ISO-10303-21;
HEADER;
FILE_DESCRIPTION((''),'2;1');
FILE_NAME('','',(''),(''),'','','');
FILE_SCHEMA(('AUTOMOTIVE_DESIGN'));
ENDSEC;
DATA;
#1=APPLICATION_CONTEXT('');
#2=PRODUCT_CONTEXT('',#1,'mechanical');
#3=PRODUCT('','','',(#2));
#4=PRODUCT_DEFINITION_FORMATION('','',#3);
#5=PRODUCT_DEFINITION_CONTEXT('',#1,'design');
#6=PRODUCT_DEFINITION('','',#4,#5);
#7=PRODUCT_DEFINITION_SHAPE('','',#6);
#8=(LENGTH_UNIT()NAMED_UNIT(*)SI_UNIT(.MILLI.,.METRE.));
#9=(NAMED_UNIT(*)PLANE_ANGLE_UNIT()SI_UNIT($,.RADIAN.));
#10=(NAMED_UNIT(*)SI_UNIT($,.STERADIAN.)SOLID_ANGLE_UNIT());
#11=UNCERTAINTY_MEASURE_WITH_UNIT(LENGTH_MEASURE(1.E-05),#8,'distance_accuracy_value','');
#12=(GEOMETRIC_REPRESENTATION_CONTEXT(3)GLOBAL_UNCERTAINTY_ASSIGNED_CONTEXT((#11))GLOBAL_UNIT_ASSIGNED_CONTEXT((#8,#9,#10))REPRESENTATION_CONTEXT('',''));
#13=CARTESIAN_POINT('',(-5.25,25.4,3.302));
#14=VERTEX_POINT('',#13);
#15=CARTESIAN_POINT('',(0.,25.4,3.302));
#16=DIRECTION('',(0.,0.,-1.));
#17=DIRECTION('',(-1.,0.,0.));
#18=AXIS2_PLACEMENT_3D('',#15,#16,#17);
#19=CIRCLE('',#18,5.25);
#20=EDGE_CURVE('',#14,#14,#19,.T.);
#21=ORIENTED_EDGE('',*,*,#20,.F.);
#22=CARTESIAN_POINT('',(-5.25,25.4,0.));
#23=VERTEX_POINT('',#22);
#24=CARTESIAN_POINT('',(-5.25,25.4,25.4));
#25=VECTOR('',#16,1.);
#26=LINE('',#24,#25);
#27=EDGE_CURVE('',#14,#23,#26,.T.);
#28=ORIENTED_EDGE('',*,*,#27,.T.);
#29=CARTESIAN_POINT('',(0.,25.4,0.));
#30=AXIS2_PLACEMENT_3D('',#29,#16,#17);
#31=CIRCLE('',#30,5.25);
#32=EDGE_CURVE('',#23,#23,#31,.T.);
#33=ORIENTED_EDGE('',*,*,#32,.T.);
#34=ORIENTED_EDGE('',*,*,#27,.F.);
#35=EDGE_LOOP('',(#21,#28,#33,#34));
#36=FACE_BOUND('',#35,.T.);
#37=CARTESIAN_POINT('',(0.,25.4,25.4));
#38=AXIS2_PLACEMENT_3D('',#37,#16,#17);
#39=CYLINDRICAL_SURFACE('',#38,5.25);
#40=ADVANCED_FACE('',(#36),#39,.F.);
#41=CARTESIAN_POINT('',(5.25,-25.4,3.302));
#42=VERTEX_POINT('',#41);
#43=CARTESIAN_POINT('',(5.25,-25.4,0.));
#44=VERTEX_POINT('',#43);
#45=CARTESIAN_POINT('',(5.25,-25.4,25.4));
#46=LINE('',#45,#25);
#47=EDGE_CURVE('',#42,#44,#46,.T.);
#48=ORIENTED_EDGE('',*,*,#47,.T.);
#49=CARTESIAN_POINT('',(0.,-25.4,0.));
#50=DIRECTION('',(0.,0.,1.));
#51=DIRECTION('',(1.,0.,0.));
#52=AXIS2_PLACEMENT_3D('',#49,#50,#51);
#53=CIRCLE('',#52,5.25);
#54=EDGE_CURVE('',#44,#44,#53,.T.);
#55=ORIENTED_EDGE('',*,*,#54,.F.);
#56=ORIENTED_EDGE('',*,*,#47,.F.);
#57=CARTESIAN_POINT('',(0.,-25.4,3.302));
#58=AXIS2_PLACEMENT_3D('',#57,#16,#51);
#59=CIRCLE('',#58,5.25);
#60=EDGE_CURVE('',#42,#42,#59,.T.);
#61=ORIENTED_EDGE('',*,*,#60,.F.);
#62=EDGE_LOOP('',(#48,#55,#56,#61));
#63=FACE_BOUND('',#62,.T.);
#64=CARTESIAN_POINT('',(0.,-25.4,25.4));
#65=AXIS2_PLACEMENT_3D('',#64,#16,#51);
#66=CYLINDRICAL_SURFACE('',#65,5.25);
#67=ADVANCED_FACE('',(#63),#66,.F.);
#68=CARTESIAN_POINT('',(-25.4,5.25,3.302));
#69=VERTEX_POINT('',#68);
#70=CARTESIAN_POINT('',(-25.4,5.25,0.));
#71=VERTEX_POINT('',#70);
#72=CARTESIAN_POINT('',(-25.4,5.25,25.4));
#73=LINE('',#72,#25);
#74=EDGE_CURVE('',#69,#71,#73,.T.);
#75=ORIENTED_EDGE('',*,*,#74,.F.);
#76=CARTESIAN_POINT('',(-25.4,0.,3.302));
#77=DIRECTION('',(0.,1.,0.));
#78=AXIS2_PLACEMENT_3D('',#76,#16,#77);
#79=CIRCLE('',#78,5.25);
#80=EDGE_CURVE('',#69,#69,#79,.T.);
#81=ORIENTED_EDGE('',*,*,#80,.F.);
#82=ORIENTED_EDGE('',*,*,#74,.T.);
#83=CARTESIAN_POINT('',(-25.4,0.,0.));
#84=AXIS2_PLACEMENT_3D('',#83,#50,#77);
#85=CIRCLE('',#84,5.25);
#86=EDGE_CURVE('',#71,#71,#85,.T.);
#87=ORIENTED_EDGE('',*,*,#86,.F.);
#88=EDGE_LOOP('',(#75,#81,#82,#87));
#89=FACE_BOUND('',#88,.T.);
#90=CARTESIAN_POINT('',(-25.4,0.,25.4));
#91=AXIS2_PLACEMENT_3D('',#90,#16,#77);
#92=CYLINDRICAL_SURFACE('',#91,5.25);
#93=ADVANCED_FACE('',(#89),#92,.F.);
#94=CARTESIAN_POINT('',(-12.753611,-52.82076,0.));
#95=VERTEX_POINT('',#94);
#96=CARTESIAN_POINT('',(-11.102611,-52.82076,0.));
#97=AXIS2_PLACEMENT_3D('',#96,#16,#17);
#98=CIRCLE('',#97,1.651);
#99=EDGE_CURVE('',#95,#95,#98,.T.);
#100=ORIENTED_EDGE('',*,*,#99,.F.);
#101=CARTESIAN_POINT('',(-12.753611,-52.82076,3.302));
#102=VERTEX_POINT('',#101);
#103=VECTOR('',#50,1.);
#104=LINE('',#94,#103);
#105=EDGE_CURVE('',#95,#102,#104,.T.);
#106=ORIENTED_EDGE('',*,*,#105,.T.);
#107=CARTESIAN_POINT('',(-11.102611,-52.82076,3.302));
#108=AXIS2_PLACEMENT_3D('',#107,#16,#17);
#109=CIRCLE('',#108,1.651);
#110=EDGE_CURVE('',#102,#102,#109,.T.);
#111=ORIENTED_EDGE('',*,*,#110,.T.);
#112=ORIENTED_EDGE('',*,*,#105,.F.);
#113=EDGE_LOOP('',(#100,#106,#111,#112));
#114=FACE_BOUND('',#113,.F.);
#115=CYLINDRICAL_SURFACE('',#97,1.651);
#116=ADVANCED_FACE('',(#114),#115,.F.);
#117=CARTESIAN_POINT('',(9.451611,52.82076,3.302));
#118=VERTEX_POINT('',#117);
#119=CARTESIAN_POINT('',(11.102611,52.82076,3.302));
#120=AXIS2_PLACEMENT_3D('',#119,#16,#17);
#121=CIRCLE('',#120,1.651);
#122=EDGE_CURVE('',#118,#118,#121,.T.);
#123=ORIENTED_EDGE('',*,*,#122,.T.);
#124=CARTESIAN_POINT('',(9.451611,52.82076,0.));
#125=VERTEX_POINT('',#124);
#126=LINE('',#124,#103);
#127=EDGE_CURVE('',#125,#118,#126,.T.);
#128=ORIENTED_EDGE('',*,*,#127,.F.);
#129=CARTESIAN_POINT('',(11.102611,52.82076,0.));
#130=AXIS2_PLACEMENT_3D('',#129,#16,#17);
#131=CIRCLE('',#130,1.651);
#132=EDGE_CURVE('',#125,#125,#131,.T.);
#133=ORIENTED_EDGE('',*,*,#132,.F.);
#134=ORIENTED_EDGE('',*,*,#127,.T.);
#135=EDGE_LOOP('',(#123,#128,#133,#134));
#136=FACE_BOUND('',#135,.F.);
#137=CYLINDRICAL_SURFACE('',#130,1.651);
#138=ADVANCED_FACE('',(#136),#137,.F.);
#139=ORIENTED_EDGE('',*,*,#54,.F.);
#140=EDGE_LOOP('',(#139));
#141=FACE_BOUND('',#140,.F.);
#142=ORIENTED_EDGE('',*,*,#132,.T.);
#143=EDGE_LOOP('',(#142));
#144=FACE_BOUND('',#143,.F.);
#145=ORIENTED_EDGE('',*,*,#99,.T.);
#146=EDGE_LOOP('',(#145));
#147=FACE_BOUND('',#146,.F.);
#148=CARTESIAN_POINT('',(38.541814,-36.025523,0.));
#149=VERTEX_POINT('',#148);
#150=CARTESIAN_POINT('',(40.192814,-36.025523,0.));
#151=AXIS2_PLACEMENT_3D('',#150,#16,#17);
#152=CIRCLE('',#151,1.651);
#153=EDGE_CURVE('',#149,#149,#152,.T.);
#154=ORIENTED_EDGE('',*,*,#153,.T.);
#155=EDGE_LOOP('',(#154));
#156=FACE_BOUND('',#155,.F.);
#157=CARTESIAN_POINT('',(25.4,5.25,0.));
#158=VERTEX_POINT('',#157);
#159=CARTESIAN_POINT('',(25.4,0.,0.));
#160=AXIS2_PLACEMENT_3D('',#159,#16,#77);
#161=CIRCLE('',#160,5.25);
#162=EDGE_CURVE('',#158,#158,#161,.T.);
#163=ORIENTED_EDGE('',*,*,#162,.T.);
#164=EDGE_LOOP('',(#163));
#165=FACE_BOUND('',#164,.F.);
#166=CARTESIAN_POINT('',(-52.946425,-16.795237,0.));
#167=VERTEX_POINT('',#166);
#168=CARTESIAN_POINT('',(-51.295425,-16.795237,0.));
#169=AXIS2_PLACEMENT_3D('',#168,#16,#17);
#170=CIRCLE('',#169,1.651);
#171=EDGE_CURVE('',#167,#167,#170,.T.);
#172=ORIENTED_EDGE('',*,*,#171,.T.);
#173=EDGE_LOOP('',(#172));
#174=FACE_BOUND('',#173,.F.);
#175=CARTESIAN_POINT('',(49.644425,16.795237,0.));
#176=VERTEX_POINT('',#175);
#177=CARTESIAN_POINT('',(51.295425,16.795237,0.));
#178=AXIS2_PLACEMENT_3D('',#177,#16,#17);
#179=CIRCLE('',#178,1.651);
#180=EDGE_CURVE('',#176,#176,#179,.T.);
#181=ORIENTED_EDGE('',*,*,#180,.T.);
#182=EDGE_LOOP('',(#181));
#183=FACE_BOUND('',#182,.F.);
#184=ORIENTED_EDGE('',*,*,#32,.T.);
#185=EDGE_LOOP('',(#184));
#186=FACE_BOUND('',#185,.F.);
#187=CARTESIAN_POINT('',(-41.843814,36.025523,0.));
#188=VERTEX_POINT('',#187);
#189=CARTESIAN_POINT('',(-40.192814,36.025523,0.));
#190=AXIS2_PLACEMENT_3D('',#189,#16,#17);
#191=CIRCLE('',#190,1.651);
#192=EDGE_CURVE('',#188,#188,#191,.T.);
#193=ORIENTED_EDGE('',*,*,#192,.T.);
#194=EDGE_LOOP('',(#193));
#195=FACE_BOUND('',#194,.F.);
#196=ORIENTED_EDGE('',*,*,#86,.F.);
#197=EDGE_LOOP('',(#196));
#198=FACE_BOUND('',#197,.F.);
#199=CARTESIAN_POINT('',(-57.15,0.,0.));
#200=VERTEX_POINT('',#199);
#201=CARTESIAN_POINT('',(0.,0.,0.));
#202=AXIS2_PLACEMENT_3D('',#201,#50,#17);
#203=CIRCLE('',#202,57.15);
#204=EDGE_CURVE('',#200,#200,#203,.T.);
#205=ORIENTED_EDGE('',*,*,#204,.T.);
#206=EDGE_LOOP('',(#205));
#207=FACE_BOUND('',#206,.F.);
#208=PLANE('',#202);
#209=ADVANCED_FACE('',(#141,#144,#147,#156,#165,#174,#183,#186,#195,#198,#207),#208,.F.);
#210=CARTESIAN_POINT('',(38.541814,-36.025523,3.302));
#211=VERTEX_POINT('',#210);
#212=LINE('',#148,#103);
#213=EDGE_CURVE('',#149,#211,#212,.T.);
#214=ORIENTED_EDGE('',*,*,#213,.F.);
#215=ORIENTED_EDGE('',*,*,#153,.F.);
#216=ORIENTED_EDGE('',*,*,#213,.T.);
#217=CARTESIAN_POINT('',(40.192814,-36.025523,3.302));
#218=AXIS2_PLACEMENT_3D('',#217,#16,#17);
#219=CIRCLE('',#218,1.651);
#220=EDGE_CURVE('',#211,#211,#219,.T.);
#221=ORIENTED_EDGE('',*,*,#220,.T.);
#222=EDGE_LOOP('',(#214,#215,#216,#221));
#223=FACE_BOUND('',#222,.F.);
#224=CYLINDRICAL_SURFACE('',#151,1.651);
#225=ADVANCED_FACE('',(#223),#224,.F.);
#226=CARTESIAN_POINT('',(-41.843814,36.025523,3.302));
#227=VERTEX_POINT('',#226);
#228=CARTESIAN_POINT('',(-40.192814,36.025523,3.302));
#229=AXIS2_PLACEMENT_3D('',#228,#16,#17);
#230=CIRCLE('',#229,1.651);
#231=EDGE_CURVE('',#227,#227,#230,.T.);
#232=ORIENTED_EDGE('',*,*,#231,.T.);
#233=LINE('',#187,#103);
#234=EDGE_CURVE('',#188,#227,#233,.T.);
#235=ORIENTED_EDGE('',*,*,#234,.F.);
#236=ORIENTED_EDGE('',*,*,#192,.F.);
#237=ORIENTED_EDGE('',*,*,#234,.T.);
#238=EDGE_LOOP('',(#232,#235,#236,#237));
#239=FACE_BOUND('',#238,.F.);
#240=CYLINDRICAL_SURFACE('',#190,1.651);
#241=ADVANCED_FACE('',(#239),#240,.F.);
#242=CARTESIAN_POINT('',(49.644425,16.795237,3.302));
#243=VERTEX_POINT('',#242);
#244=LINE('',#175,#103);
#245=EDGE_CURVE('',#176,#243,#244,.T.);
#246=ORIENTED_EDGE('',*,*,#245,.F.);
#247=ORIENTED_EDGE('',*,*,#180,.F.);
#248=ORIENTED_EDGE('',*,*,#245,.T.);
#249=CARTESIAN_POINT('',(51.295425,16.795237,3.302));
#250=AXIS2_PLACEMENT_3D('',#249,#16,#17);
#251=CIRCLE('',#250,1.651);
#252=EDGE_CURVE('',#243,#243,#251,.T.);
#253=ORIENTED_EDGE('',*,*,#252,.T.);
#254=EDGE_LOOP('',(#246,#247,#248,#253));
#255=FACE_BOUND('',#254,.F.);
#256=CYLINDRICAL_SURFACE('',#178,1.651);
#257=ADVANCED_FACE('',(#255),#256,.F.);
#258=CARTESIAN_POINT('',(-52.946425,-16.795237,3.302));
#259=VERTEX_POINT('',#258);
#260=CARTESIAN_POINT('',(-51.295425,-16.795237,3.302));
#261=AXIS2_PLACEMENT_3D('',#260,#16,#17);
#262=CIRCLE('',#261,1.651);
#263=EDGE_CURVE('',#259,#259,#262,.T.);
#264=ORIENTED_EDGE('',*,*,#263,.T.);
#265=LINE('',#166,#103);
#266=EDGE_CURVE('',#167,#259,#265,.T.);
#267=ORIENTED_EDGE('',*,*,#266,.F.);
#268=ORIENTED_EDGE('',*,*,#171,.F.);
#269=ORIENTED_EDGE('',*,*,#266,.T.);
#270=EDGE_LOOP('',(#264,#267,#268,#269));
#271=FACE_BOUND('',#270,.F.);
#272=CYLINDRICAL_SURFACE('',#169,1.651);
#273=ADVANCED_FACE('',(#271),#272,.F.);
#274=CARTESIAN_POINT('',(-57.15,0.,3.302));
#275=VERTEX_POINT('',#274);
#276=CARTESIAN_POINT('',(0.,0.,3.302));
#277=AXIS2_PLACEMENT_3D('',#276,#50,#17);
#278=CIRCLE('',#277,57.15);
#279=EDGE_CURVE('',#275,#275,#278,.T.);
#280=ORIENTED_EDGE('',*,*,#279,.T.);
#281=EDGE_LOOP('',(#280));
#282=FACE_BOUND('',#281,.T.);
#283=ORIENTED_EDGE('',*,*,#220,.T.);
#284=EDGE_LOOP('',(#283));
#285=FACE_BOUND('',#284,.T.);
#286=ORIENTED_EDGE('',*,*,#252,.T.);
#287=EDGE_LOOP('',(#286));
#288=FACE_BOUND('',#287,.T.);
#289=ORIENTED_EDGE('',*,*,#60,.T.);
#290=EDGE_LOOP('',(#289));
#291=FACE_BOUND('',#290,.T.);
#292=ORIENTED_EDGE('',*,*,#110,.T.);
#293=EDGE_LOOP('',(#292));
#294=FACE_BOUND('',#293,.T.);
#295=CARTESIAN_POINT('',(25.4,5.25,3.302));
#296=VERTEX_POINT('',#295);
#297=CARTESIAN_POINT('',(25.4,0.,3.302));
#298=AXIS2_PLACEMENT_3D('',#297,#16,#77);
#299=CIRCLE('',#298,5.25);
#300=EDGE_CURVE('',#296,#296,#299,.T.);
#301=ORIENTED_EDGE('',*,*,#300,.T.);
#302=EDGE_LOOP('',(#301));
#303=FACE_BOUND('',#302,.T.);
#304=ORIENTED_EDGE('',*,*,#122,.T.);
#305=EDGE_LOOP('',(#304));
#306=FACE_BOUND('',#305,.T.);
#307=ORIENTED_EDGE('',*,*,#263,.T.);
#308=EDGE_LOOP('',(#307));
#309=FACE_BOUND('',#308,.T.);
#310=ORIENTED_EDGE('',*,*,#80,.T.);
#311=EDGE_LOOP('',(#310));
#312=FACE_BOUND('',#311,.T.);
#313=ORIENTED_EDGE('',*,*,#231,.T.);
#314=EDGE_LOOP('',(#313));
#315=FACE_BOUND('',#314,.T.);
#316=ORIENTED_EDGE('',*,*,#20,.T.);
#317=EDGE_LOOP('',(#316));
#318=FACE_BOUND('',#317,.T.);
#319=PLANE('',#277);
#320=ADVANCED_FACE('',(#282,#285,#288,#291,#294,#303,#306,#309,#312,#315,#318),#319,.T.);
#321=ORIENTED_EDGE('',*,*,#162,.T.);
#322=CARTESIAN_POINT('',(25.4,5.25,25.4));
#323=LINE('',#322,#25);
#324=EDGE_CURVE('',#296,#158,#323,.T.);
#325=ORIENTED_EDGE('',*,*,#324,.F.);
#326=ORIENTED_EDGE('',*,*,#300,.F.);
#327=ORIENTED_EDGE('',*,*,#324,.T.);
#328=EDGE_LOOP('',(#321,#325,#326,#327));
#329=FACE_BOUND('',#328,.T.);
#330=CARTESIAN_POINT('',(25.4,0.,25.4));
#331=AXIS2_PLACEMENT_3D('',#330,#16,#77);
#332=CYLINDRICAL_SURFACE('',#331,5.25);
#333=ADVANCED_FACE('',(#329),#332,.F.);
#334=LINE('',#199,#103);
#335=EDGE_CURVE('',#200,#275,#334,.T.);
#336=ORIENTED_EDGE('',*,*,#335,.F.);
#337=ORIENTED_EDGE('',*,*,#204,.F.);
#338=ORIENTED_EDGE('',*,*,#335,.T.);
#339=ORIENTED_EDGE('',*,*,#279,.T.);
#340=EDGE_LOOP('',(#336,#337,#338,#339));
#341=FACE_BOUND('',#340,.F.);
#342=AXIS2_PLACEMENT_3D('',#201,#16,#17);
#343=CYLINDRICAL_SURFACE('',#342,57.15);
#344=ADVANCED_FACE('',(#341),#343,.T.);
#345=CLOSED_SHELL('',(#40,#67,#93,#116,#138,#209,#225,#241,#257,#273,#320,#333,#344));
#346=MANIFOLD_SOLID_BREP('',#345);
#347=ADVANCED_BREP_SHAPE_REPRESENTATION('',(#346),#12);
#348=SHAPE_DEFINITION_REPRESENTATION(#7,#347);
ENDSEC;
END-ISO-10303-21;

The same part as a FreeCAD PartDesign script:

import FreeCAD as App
import Part
import Sketcher

V = App.Vector
Q = App.Units.Quantity

doc = App.newDocument("Part")
body = doc.addObject("PartDesign::Body", "Body")

sketch1 = doc.addObject("Sketcher::SketchObject", "Sketch")
body.addObject(sketch1)
sketch1.AttachmentSupport = (doc.XY_Plane, [""])
sketch1.MapMode = "FlatFace"
sketch1.addGeometry(Part.Circle(V(0, 0, 0), V(0, 0, 1), 57.15), False)
sketch1.addConstraint([
    Sketcher.Constraint("Coincident", 0, 3, -1, 1),
    Sketcher.Constraint("Diameter", 0, Q("4.5 in")),
])
pad1 = doc.addObject("PartDesign::Pad", "Pad")
body.addObject(pad1)
pad1.Profile = sketch1
pad1.Length = Q("0.13 in")

sketch2 = doc.addObject("Sketcher::SketchObject", "Sketch001")
body.addObject(sketch2)
sketch2.AttachmentSupport = (doc.XY_Plane, [""])
sketch2.MapMode = "FlatFace"
sketch2.addGeometry([
    Part.Circle(V(51.295425, 16.795237, 0), V(0, 0, 1), 1.651),
    Part.Circle(V(11.102611, 52.82076, 0), V(0, 0, 1), 1.651),
    Part.Circle(V(-40.192814, 36.025523, 0), V(0, 0, 1), 1.651),
    Part.Circle(V(-51.295425, -16.795237, 0), V(0, 0, 1), 1.651),
    Part.Circle(V(-11.102611, -52.82076, 0), V(0, 0, 1), 1.651),
    Part.Circle(V(40.192814, -36.025523, 0), V(0, 0, 1), 1.651),
], False)
sketch2.addConstraint([
    Sketcher.Constraint("Equal", 0, 1),
    Sketcher.Constraint("Equal", 1, 2),
    Sketcher.Constraint("Equal", 2, 3),
    Sketcher.Constraint("Equal", 3, 4),
    Sketcher.Constraint("Equal", 4, 5),
    Sketcher.Constraint("Symmetric", 0, 3, 3, 3, -1, 1),
    Sketcher.Constraint("Symmetric", 1, 3, 4, 3, -1, 1),
    Sketcher.Constraint("Symmetric", 2, 3, 5, 3, -1, 1),
    Sketcher.Constraint("Diameter", 0, Q("0.13 in")),
    Sketcher.Constraint("DistanceX", -1, 1, 1, 3, 11.102611),
    Sketcher.Constraint("DistanceY", -1, 1, 1, 3, 52.82076),
    Sketcher.Constraint("DistanceX", 2, 3, 0, 3, 91.48824),
    Sketcher.Constraint("DistanceX", 3, 3, 2, 3, 11.102611),
    Sketcher.Constraint("DistanceY", 3, 3, 2, 3, 52.82076),
    Sketcher.Constraint("DistanceY", -1, 1, 0, 3, 16.795237),
])
pocket1 = doc.addObject("PartDesign::Pocket", "Pocket")
body.addObject(pocket1)
pocket1.Profile = sketch2
pocket1.Type = "ThroughAll"
pocket1.Reversed = True

sketch3 = doc.addObject("Sketcher::SketchObject", "Sketch002")
body.addObject(sketch3)
sketch3.AttachmentSupport = (doc.YZ_Plane, [""])
sketch3.MapMode = "FlatFace"
sketch3.AttachmentOffset = App.Placement(V(0, 0, 1 * 25.4), App.Rotation())
sketch3.addGeometry([
    Part.LineSegment(V(0, 28.554518, 0), V(0, 0, 0)),
    Part.LineSegment(V(0, 0, 0), V(5.25, 0, 0)),
    Part.LineSegment(V(5.25, 0, 0), V(5.25, 25.4, 0)),
    Part.LineSegment(V(5.25, 25.4, 0), V(0, 28.554518, 0)),
], False)
sketch3.addConstraint([
    Sketcher.Constraint("Coincident", 0, 2, 1, 1),
    Sketcher.Constraint("Coincident", 1, 2, 2, 1),
    Sketcher.Constraint("Coincident", 2, 2, 3, 1),
    Sketcher.Constraint("Coincident", 3, 2, 0, 1),
    Sketcher.Constraint("Vertical", 0),
    Sketcher.Constraint("Horizontal", 1),
    Sketcher.Constraint("Vertical", 2),
    Sketcher.Constraint("Coincident", 0, 2, -1, 1),
    Sketcher.Constraint("DistanceY", 2, 1, 2, 2, Q("1 in")),
    Sketcher.Constraint("Angle", 3, Q("149 deg")),
    Sketcher.Constraint("DistanceX", 1, 1, 1, 2, 5.25),
])
groove = doc.addObject("PartDesign::Groove", "Groove")
body.addObject(groove)
groove.Profile = sketch3
groove.ReferenceAxis = (sketch3, ["V_Axis"])
groove.Angle = 360
doc.recompute()

linearpattern = doc.addObject("PartDesign::LinearPattern", "LinearPattern")
body.addObject(linearpattern)
linearpattern.Originals = [groove]
linearpattern.Direction = (doc.X_Axis, [""])
linearpattern.Mode = "offset"
linearpattern.Offset = Q("2 in")
linearpattern.Occurrences = 2
linearpattern.Reversed = True
body.Tip = linearpattern
doc.recompute()

polarpattern = doc.addObject("PartDesign::PolarPattern", "PolarPattern")
body.addObject(polarpattern)
polarpattern.Originals = [groove]
polarpattern.Axis = (doc.Z_Axis, [""])
polarpattern.Angle = 360
polarpattern.Occurrences = 4
body.Tip = polarpattern

sketch4 = doc.addObject("Sketcher::SketchObject", "Sketch003")
body.addObject(sketch4)
sketch4.AttachmentSupport = (doc.XZ_Plane, [""])
sketch4.MapMode = "FlatFace"
sketch4.AttachmentOffset = App.Placement(V(0, 0, 1 * 25.4), App.Rotation())
sketch4.addGeometry([
    Part.LineSegment(V(0, 28.554518, 0), V(0, 0, 0)),
    Part.LineSegment(V(0, 0, 0), V(-5.25, 0, 0)),
    Part.LineSegment(V(-5.25, 0, 0), V(-5.25, 25.4, 0)),
    Part.LineSegment(V(-5.25, 25.4, 0), V(0, 28.554518, 0)),
], False)
sketch4.addConstraint([
    Sketcher.Constraint("Coincident", 0, 2, 1, 1),
    Sketcher.Constraint("Coincident", 1, 2, 2, 1),
    Sketcher.Constraint("Coincident", 2, 2, 3, 1),
    Sketcher.Constraint("Coincident", 3, 2, 0, 1),
    Sketcher.Constraint("Vertical", 0),
    Sketcher.Constraint("Horizontal", 1),
    Sketcher.Constraint("Vertical", 2),
    Sketcher.Constraint("Coincident", 0, 2, -1, 1),
    Sketcher.Constraint("DistanceY", 2, 1, 2, 2, Q("1 in")),
    Sketcher.Constraint("Angle", 3, Q("31 deg")),
    Sketcher.Constraint("DistanceX", 1, 2, 1, 1, 5.25),
])
groove2 = doc.addObject("PartDesign::Groove", "Groove001")
body.addObject(groove2)
groove2.Profile = sketch4
groove2.ReferenceAxis = (sketch4, ["V_Axis"])
groove2.Angle = 360

sketch5 = doc.addObject("Sketcher::SketchObject", "Sketch004")
body.addObject(sketch5)
sketch5.AttachmentSupport = (doc.YZ_Plane, [""])
sketch5.MapMode = "FlatFace"
sketch5.AttachmentOffset = App.Placement(V(0, 0, 1 * 25.4), App.Rotation())
sketch5.addGeometry([
    Part.LineSegment(V(0, 28.554518, 0), V(0, 0, 0)),
    Part.LineSegment(V(0, 0, 0), V(-5.25, 0, 0)),
    Part.LineSegment(V(-5.25, 0, 0), V(-5.25, 25.4, 0)),
    Part.LineSegment(V(-5.25, 25.4, 0), V(0, 28.554518, 0)),
], False)
sketch5.addConstraint([
    Sketcher.Constraint("Coincident", 0, 2, 1, 1),
    Sketcher.Constraint("Coincident", 1, 2, 2, 1),
    Sketcher.Constraint("Coincident", 2, 2, 3, 1),
    Sketcher.Constraint("Coincident", 3, 2, 0, 1),
    Sketcher.Constraint("Vertical", 0),
    Sketcher.Constraint("Horizontal", 1),
    Sketcher.Constraint("Vertical", 2),
    Sketcher.Constraint("Coincident", 0, 2, -1, 1),
    Sketcher.Constraint("DistanceY", 2, 1, 2, 2, Q("1 in")),
    Sketcher.Constraint("Angle", 3, Q("31 deg")),
    Sketcher.Constraint("DistanceX", 1, 2, 1, 1, 5.25),
])
groove3 = doc.addObject("PartDesign::Groove", "Groove002")
body.addObject(groove3)
groove3.Profile = sketch5
groove3.ReferenceAxis = (sketch5, ["V_Axis"])
groove3.Angle = 360

sketch6 = doc.addObject("Sketcher::SketchObject", "Sketch005")
body.addObject(sketch6)
sketch6.AttachmentSupport = (doc.XZ_Plane, [""])
sketch6.MapMode = "FlatFace"
sketch6.AttachmentOffset = App.Placement(V(0, 0, -1 * 25.4), App.Rotation())
sketch6.addGeometry([
    Part.LineSegment(V(0, 28.554518, 0), V(0, 0, 0)),
    Part.LineSegment(V(0, 0, 0), V(5.25, 0, 0)),
    Part.LineSegment(V(5.25, 0, 0), V(5.25, 25.4, 0)),
    Part.LineSegment(V(5.25, 25.4, 0), V(0, 28.554518, 0)),
], False)
sketch6.addConstraint([
    Sketcher.Constraint("Coincident", 0, 2, 1, 1),
    Sketcher.Constraint("Coincident", 1, 2, 2, 1),
    Sketcher.Constraint("Coincident", 2, 2, 3, 1),
    Sketcher.Constraint("Coincident", 3, 2, 0, 1),
    Sketcher.Constraint("Vertical", 0),
    Sketcher.Constraint("Horizontal", 1),
    Sketcher.Constraint("Vertical", 2),
    Sketcher.Constraint("Coincident", 0, 2, -1, 1),
    Sketcher.Constraint("DistanceY", 2, 1, 2, 2, Q("1 in")),
    Sketcher.Constraint("Angle", 3, Q("149 deg")),
    Sketcher.Constraint("DistanceX", 1, 1, 1, 2, 5.25),
])
groove4 = doc.addObject("PartDesign::Groove", "Groove003")
body.addObject(groove4)
groove4.Profile = sketch6
groove4.ReferenceAxis = (sketch6, ["V_Axis"])
groove4.Angle = 360

doc.recompute()
